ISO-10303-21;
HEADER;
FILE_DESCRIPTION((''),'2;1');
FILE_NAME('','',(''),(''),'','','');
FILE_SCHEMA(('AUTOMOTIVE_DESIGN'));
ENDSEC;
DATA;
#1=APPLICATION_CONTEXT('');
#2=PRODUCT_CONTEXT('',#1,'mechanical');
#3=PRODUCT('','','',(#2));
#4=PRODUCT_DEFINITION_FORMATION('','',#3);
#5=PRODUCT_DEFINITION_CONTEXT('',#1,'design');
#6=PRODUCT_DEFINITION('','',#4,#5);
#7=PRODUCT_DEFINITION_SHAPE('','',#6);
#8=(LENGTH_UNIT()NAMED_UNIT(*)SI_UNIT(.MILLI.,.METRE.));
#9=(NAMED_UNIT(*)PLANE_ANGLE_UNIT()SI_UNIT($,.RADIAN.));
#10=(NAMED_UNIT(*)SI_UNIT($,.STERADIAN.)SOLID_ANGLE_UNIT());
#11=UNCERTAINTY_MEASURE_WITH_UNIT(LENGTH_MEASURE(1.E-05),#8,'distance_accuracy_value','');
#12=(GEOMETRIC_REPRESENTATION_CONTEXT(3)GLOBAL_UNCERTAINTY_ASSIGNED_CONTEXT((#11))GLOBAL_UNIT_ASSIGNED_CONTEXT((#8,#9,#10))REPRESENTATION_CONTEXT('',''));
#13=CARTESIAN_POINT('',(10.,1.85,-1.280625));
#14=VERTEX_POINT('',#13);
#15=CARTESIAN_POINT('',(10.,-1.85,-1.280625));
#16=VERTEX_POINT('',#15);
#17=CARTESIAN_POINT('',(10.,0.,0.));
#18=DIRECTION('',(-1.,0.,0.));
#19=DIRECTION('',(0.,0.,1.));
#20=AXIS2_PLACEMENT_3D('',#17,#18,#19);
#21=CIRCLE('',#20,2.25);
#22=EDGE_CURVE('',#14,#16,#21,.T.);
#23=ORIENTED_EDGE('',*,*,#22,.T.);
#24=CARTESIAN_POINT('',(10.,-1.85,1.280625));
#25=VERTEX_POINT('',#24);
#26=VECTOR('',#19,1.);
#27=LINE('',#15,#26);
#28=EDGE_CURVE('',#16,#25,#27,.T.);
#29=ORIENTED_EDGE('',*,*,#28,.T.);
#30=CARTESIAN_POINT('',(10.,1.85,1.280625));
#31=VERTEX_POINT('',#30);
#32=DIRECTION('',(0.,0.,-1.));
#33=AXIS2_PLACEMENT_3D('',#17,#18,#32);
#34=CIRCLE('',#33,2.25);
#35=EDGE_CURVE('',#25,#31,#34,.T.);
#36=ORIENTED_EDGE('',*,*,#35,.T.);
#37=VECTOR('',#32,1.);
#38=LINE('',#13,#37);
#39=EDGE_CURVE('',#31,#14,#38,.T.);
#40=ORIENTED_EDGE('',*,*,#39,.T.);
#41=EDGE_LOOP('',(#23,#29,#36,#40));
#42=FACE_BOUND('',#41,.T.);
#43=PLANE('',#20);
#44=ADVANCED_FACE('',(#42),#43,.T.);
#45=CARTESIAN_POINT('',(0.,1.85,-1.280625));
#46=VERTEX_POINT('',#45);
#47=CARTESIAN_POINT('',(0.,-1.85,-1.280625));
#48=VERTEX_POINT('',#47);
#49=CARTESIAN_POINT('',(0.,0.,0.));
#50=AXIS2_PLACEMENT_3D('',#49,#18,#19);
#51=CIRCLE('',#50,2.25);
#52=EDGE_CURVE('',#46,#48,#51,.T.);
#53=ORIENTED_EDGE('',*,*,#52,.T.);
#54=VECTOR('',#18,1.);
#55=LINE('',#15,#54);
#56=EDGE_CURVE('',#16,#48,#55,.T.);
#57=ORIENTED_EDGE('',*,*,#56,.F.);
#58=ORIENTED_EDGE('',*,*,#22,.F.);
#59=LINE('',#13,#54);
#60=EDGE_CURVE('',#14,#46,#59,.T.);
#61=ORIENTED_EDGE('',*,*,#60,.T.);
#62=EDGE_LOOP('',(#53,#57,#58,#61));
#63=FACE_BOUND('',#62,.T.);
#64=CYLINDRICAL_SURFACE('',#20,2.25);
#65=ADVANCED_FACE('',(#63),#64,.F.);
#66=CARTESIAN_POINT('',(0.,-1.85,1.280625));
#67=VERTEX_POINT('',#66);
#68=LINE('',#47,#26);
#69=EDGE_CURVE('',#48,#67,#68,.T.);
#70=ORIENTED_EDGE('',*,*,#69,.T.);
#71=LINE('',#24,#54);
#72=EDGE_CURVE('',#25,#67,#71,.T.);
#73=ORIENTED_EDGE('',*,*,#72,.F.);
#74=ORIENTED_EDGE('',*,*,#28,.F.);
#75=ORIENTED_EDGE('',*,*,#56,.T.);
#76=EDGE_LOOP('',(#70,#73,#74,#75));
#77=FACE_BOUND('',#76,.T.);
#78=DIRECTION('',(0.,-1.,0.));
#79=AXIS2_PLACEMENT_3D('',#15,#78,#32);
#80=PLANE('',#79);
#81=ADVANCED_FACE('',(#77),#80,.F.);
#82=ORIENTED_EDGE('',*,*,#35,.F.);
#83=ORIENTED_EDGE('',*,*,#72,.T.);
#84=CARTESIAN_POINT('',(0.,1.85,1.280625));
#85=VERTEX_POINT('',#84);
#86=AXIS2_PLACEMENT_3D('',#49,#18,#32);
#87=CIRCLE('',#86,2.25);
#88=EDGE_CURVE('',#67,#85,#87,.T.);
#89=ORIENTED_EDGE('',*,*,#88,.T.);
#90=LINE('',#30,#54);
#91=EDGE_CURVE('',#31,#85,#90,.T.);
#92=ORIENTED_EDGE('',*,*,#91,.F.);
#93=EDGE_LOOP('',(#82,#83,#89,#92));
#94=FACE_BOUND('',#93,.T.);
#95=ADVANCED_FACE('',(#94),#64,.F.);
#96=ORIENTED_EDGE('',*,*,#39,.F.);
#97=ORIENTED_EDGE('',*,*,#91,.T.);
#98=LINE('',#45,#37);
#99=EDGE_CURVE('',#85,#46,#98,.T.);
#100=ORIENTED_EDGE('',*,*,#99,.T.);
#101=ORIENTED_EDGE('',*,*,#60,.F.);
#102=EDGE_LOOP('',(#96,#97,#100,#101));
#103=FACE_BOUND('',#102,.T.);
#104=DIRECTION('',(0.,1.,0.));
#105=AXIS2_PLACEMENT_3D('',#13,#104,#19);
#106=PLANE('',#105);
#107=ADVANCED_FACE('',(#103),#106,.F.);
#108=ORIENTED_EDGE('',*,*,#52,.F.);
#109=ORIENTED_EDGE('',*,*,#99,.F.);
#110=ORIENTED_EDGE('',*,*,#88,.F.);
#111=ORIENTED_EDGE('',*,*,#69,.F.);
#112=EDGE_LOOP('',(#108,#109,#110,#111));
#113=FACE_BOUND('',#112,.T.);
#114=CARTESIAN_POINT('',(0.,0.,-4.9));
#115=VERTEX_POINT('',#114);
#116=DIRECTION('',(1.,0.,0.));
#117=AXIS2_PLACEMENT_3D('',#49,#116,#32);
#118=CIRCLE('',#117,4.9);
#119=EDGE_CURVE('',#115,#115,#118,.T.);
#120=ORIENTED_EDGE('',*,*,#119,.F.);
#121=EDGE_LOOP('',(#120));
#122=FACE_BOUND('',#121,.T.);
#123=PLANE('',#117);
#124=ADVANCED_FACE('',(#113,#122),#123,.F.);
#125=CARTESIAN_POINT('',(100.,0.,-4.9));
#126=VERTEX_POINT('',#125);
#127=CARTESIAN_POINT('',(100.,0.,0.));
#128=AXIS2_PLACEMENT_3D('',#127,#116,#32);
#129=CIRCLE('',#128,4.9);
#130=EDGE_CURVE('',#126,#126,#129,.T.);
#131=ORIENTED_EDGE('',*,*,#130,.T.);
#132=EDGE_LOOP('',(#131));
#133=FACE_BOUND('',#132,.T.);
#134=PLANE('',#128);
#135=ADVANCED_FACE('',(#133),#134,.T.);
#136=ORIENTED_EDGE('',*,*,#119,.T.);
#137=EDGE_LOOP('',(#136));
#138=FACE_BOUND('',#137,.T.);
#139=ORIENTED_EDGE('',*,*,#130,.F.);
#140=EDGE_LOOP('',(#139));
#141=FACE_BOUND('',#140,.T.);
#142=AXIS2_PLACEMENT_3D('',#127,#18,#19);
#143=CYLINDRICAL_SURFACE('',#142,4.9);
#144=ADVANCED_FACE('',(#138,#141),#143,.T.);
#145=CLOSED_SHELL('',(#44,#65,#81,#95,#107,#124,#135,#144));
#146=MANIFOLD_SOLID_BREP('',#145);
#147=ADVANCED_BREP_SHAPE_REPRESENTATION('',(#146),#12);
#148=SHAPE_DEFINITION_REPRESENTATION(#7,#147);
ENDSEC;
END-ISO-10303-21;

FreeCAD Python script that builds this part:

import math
import FreeCAD as App
import Part
import Sketcher
Q = App.Units.Quantity

doc = App.newDocument("Part")
params = doc.addObject("Spreadsheet::Sheet", "Params")
for row, (alias, value) in enumerate([
    ("sketch1_diameter", "9.8 mm"),
    ("pad1_length", "100 mm"),
    ("sketch2_radius", "2.25 mm"),
    ("pocket1_length", "10 mm"),
], start=1):
    params.set(f"A{row}", alias)
    params.set(f"B{row}", "=" + value)
    params.setAlias(f"B{row}", alias)

body = doc.addObject("PartDesign::Body", "Body")

# Sketch on YZ plane
sketch1 = body.newObject("Sketcher::SketchObject", "Sketch")
sketch1.AttachmentSupport = (doc.getObject("YZ_Plane"), [""])
sketch1.MapMode = "FlatFace"
sketch1.addGeometry(Part.Circle(App.Vector(0, 0, 0), App.Vector(0, 0, 1), 4.9), False)
sketch1.addConstraint([
    Sketcher.Constraint("Coincident", 0, 3, -1, 1),
    Sketcher.Constraint("Diameter", 0, Q("9.8 mm")),
])
sketch1.setExpression("Constraints[1]", "Params.sketch1_diameter")
pad1 = body.newObject("PartDesign::Pad", "Pad")
pad1.Profile = sketch1
pad1.setExpression("Length", "Params.pad1_length")

# Sketch on YZ plane
sketch2 = body.newObject("Sketcher::SketchObject", "Sketch001")
sketch2.AttachmentSupport = (doc.getObject("YZ_Plane"), [""])
sketch2.MapMode = "FlatFace"
sketch2.addGeometry([
    Part.LineSegment(App.Vector(1.85, 1.280625, 0), App.Vector(1.85, -1.280625, 0)),
    Part.ArcOfCircle(Part.Circle(App.Vector(0, 0, 0), App.Vector(0, 0, 1), 2.25), math.radians(-145.307869), math.radians(-34.692131)),
    Part.LineSegment(App.Vector(-1.85, -1.280625, 0), App.Vector(-1.85, 1.280625, 0)),
    Part.ArcOfCircle(Part.Circle(App.Vector(0, 0, 0), App.Vector(0, 0, 1), 2.25), math.radians(34.692131), math.radians(145.307869)),
], False)
sketch2.addConstraint([
    Sketcher.Constraint("Coincident", 0, 2, 1, 2),
    Sketcher.Constraint("Coincident", 1, 1, 2, 1),
    Sketcher.Constraint("Coincident", 2, 2, 3, 2),
    Sketcher.Constraint("Coincident", 3, 1, 0, 1),
    Sketcher.Constraint("Vertical", 0),
    Sketcher.Constraint("Vertical", 2),
    Sketcher.Constraint("Coincident", 1, 3, -1, 1),
    Sketcher.Constraint("Coincident", 3, 3, -1, 1),
    Sketcher.Constraint("Equal", 1, 3),
    Sketcher.Constraint("Horizontal", 0, 2, 1, 1),
    Sketcher.Constraint("Radius", 1, Q("2.25 mm")),
    Sketcher.Constraint("DistanceX", 1, 1, 0, 2, Q("3.7 mm")),
])
sketch2.setExpression("Constraints[10]", "Params.sketch2_radius")
pocket1 = body.newObject("PartDesign::Pocket", "Pocket")
pocket1.Profile = sketch2
pocket1.setExpression("Length", "Params.pocket1_length")
pocket1.Reversed = True

doc.recompute()
